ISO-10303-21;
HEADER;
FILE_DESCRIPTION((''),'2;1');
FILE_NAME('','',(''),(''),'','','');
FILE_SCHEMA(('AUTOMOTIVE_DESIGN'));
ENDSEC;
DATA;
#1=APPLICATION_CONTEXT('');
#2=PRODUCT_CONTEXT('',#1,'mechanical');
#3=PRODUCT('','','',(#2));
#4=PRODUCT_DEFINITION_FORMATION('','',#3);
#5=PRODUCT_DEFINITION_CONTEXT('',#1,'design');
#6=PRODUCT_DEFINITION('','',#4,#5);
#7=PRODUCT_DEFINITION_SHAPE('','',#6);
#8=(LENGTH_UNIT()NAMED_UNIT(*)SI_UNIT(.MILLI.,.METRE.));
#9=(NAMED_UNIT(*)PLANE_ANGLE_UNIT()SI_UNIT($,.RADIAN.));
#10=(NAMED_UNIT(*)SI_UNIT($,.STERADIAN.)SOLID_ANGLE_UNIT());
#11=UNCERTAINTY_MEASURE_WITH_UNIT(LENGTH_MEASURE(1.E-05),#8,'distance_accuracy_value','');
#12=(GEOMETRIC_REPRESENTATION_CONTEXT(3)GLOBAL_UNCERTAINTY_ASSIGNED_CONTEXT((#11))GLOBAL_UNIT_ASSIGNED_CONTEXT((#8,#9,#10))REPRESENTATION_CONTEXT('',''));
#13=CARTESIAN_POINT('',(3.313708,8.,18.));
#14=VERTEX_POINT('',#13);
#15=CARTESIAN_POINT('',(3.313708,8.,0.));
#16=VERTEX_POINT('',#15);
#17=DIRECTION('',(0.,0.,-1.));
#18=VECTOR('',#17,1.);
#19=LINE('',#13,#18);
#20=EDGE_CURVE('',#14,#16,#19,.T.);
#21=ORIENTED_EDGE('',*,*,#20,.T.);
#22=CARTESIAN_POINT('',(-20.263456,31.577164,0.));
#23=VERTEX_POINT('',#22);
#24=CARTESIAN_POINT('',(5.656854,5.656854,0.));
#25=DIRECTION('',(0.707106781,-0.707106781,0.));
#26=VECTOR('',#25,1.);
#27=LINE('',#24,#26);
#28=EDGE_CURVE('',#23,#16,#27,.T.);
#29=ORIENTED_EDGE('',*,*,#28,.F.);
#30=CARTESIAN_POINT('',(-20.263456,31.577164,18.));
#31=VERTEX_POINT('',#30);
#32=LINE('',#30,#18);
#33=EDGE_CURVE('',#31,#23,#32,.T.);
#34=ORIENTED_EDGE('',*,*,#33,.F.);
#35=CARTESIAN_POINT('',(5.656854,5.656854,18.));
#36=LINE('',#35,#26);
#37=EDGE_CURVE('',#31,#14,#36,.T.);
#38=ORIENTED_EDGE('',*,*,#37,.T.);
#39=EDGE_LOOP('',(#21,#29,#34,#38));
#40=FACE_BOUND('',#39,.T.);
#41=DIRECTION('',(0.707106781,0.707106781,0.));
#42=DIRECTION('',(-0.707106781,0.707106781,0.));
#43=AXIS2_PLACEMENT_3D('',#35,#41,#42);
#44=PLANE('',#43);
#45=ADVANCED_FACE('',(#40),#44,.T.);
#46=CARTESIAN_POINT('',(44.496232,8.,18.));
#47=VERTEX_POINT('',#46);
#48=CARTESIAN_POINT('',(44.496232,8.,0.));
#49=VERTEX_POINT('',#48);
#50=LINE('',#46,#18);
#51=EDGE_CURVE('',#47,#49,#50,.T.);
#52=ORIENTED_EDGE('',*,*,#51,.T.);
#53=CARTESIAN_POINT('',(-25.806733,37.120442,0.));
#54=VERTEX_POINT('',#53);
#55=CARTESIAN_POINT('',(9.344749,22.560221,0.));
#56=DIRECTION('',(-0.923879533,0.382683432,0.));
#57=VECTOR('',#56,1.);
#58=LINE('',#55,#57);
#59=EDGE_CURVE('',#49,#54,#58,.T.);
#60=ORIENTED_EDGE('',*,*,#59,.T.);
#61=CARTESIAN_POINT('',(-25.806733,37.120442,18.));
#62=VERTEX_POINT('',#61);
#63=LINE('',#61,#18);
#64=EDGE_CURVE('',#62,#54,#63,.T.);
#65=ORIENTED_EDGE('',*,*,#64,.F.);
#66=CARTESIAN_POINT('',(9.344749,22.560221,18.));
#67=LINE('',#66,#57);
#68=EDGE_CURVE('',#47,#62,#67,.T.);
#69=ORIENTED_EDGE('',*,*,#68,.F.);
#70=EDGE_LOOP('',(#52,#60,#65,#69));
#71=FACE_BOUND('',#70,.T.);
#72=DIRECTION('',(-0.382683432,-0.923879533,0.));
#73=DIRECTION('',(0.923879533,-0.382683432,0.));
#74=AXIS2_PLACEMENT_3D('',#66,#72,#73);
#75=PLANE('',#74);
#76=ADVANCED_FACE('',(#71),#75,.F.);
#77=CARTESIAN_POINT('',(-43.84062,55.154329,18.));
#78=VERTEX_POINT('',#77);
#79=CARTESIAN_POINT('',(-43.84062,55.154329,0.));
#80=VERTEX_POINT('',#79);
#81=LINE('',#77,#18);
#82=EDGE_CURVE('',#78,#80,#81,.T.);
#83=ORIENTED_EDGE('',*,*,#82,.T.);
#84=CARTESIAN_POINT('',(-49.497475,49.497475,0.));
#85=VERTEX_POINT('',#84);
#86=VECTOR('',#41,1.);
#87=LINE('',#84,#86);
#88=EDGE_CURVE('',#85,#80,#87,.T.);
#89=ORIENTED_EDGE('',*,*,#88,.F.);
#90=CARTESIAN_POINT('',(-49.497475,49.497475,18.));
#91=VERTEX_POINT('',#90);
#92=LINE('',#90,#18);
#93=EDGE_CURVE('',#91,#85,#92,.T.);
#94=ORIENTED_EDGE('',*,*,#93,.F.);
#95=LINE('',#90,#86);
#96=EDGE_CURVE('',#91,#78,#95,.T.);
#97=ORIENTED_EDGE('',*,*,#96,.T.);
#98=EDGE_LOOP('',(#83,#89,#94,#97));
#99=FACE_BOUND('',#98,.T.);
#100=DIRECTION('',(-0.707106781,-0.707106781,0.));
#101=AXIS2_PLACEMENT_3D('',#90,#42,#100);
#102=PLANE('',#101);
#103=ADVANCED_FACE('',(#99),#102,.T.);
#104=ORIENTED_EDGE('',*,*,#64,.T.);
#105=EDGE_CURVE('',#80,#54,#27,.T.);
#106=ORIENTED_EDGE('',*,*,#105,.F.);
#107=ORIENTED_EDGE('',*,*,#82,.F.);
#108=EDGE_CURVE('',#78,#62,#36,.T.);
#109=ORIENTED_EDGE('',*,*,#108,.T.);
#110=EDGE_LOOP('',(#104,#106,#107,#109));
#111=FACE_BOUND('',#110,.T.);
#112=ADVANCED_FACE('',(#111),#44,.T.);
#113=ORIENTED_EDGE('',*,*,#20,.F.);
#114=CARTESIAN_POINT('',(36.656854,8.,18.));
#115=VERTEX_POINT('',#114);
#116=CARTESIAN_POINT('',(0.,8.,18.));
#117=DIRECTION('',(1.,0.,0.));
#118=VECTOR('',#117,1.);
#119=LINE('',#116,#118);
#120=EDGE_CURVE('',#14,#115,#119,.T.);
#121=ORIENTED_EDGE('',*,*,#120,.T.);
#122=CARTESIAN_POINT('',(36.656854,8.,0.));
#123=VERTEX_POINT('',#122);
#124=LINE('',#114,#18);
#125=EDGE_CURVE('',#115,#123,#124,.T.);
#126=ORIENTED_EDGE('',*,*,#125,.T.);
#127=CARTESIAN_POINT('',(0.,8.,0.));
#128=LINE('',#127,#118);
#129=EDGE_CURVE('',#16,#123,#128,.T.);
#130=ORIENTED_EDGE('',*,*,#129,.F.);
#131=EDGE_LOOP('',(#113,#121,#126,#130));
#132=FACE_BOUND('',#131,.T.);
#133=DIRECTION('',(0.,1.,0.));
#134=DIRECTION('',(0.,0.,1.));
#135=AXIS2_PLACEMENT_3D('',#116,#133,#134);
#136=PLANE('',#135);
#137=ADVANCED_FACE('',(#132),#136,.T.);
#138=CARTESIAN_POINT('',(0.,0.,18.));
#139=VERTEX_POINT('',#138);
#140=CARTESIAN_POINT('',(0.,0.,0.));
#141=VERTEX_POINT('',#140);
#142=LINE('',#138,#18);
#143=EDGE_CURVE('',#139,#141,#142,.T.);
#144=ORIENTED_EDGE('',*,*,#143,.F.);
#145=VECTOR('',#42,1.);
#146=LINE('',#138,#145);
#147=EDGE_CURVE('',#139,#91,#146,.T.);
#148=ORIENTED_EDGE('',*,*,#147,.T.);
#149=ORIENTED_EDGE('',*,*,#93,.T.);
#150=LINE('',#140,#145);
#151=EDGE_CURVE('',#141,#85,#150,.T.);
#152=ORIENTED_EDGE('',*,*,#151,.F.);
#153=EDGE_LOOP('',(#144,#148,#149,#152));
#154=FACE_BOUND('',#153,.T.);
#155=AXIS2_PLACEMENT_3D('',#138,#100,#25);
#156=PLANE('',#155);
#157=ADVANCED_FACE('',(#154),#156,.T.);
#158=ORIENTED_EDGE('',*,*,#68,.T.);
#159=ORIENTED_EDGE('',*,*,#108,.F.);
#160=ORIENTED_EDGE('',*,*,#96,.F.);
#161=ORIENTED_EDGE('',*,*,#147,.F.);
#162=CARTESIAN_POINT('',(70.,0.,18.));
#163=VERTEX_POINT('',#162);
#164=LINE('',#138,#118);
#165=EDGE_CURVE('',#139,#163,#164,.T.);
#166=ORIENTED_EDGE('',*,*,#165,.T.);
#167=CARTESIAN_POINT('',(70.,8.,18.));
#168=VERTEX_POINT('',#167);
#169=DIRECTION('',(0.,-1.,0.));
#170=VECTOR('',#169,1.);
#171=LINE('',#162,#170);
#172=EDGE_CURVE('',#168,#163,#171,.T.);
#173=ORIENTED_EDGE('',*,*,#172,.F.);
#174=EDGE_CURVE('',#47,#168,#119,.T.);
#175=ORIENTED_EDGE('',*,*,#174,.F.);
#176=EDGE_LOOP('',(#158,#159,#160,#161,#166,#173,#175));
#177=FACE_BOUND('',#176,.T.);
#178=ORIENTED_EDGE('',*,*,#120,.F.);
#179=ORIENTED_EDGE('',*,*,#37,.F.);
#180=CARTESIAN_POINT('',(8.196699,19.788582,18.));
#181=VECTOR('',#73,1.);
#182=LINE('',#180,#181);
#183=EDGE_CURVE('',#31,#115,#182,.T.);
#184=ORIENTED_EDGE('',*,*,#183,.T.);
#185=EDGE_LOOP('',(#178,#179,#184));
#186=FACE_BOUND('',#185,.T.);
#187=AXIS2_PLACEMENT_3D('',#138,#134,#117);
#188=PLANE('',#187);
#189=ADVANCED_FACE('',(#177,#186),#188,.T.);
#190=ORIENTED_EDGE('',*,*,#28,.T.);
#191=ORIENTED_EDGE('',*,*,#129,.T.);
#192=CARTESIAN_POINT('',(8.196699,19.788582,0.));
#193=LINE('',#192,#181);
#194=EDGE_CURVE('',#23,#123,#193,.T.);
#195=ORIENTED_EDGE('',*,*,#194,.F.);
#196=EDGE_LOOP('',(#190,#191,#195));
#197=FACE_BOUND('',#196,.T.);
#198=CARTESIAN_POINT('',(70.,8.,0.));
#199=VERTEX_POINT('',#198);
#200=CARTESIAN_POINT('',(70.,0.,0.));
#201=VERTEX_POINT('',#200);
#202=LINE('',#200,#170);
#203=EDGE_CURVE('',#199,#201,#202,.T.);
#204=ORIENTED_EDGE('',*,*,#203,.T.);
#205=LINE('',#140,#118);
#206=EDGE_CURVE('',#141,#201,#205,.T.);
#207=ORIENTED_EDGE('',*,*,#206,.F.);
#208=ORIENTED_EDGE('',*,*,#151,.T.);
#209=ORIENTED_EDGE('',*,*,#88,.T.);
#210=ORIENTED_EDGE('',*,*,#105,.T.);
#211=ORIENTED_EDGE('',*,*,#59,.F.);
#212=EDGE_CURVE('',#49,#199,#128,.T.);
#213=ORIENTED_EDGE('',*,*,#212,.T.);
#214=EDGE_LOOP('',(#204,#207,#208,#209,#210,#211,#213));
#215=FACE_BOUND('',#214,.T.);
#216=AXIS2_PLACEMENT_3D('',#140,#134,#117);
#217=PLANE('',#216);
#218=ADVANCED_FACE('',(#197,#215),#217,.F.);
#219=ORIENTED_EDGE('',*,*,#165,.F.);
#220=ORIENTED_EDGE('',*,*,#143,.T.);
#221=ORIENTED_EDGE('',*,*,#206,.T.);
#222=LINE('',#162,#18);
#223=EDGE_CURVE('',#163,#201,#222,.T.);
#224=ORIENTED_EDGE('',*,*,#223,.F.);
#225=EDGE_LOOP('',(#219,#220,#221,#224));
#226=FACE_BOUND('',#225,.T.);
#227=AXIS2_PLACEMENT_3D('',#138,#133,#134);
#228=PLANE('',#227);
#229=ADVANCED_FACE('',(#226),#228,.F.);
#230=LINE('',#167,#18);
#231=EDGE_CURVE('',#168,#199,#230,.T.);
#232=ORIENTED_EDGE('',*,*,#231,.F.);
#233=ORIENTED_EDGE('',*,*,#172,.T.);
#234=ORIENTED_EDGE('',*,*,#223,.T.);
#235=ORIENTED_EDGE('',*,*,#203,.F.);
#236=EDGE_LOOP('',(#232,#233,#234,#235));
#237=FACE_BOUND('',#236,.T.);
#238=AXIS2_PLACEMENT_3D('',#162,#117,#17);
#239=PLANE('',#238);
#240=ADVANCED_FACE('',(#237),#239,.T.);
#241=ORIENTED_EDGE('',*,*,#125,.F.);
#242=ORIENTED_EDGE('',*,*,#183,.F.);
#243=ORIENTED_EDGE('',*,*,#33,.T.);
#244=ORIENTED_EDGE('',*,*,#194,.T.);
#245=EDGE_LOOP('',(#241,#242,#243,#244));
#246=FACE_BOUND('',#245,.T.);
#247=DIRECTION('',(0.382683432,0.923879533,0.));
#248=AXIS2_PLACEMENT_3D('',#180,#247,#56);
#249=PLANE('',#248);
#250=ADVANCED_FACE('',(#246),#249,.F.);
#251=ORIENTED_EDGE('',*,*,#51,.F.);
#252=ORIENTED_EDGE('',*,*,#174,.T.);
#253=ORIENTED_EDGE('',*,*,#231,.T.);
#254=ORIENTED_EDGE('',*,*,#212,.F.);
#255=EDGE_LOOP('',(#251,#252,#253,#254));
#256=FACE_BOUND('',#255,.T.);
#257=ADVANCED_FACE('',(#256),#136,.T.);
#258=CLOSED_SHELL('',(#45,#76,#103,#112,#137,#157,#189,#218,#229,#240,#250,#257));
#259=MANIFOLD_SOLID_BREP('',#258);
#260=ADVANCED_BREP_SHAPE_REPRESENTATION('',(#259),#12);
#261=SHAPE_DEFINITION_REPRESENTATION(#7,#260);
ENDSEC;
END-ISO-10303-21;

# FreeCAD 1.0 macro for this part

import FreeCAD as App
import Part
import Sketcher
from FreeCAD import Vector
Q = App.Units.Quantity

doc = App.newDocument("Part")
body = doc.addObject("PartDesign::Body", "Body")

sketch1 = doc.addObject("Sketcher::SketchObject", "Sketch")
body.addObject(sketch1)
sketch1.AttachmentSupport = (doc.XY_Plane, [""])
sketch1.MapMode = "FlatFace"
sketch1.addGeometry([
    Part.LineSegment(Vector(70, 0, 0), Vector(70, 8, 0)),
    Part.LineSegment(Vector(70, 8, 0), Vector(44, 8, 0)),
    Part.LineSegment(Vector(44, 8, 0), Vector(-26, 37, 0)),
    Part.LineSegment(Vector(-26, 37, 0), Vector(-44, 55, 0)),
    Part.LineSegment(Vector(-44, 55, 0), Vector(-49, 49, 0)),
    Part.LineSegment(Vector(-49, 49, 0), Vector(0, 0, 0)),
    Part.LineSegment(Vector(0, 0, 0), Vector(70, 0, 0)),
    Part.LineSegment(Vector(3, 8, 0), Vector(-20, 32, 0)),
    Part.LineSegment(Vector(-20, 32, 0), Vector(37, 8, 0)),
    Part.LineSegment(Vector(37, 8, 0), Vector(3, 8, 0)),
], False)
sketch1.addConstraint([
    Sketcher.Constraint("Coincident", 0, 2, 1, 1),
    Sketcher.Constraint("Coincident", 1, 2, 2, 1),
    Sketcher.Constraint("Coincident", 2, 2, 3, 1),
    Sketcher.Constraint("Coincident", 3, 2, 4, 1),
    Sketcher.Constraint("Coincident", 4, 2, 5, 1),
    Sketcher.Constraint("Coincident", 5, 2, 6, 1),
    Sketcher.Constraint("Coincident", 6, 2, 0, 1),
    Sketcher.Constraint("Coincident", 7, 2, 8, 1),
    Sketcher.Constraint("Coincident", 8, 2, 9, 1),
    Sketcher.Constraint("Coincident", 9, 2, 7, 1),
    Sketcher.Constraint("Vertical", 0),
    Sketcher.Constraint("Horizontal", 1),
    Sketcher.Constraint("Horizontal", 6),
    Sketcher.Constraint("Horizontal", 9),
    Sketcher.Constraint("Coincident", 5, 2, -1, 1),
    Sketcher.Constraint("Perpendicular", 3, 4),
    Sketcher.Constraint("Perpendicular", 4, 5),
    Sketcher.Constraint("Parallel", 5, 7),
    Sketcher.Constraint("Parallel", 2, 8),
    Sketcher.Constraint("Horizontal", 1, 2, 8, 2),
    Sketcher.Constraint("DistanceX", 6, 1, 6, 2, 70.0),
    Sketcher.Constraint("DistanceY", 0, 1, 0, 2, 8.0),
    Sketcher.Constraint("Angle", 3, Q("135 deg")),
    Sketcher.Constraint("Distance", 4, 8.0),
    Sketcher.Constraint("Distance", 5, 70.0),
    Sketcher.Constraint("Angle", 2, Q("157.5 deg")),
    Sketcher.Constraint("Distance", 8, 61.6101),
    Sketcher.Constraint("Distance", 2, 76.095381),
    Sketcher.Constraint("DistanceX", -1, 1, 9, 2, 3.313708),
])
pad1 = doc.addObject("PartDesign::Pad", "Pad")
body.addObject(pad1)
pad1.Profile = sketch1
pad1.Length = 18

doc.recompute()
